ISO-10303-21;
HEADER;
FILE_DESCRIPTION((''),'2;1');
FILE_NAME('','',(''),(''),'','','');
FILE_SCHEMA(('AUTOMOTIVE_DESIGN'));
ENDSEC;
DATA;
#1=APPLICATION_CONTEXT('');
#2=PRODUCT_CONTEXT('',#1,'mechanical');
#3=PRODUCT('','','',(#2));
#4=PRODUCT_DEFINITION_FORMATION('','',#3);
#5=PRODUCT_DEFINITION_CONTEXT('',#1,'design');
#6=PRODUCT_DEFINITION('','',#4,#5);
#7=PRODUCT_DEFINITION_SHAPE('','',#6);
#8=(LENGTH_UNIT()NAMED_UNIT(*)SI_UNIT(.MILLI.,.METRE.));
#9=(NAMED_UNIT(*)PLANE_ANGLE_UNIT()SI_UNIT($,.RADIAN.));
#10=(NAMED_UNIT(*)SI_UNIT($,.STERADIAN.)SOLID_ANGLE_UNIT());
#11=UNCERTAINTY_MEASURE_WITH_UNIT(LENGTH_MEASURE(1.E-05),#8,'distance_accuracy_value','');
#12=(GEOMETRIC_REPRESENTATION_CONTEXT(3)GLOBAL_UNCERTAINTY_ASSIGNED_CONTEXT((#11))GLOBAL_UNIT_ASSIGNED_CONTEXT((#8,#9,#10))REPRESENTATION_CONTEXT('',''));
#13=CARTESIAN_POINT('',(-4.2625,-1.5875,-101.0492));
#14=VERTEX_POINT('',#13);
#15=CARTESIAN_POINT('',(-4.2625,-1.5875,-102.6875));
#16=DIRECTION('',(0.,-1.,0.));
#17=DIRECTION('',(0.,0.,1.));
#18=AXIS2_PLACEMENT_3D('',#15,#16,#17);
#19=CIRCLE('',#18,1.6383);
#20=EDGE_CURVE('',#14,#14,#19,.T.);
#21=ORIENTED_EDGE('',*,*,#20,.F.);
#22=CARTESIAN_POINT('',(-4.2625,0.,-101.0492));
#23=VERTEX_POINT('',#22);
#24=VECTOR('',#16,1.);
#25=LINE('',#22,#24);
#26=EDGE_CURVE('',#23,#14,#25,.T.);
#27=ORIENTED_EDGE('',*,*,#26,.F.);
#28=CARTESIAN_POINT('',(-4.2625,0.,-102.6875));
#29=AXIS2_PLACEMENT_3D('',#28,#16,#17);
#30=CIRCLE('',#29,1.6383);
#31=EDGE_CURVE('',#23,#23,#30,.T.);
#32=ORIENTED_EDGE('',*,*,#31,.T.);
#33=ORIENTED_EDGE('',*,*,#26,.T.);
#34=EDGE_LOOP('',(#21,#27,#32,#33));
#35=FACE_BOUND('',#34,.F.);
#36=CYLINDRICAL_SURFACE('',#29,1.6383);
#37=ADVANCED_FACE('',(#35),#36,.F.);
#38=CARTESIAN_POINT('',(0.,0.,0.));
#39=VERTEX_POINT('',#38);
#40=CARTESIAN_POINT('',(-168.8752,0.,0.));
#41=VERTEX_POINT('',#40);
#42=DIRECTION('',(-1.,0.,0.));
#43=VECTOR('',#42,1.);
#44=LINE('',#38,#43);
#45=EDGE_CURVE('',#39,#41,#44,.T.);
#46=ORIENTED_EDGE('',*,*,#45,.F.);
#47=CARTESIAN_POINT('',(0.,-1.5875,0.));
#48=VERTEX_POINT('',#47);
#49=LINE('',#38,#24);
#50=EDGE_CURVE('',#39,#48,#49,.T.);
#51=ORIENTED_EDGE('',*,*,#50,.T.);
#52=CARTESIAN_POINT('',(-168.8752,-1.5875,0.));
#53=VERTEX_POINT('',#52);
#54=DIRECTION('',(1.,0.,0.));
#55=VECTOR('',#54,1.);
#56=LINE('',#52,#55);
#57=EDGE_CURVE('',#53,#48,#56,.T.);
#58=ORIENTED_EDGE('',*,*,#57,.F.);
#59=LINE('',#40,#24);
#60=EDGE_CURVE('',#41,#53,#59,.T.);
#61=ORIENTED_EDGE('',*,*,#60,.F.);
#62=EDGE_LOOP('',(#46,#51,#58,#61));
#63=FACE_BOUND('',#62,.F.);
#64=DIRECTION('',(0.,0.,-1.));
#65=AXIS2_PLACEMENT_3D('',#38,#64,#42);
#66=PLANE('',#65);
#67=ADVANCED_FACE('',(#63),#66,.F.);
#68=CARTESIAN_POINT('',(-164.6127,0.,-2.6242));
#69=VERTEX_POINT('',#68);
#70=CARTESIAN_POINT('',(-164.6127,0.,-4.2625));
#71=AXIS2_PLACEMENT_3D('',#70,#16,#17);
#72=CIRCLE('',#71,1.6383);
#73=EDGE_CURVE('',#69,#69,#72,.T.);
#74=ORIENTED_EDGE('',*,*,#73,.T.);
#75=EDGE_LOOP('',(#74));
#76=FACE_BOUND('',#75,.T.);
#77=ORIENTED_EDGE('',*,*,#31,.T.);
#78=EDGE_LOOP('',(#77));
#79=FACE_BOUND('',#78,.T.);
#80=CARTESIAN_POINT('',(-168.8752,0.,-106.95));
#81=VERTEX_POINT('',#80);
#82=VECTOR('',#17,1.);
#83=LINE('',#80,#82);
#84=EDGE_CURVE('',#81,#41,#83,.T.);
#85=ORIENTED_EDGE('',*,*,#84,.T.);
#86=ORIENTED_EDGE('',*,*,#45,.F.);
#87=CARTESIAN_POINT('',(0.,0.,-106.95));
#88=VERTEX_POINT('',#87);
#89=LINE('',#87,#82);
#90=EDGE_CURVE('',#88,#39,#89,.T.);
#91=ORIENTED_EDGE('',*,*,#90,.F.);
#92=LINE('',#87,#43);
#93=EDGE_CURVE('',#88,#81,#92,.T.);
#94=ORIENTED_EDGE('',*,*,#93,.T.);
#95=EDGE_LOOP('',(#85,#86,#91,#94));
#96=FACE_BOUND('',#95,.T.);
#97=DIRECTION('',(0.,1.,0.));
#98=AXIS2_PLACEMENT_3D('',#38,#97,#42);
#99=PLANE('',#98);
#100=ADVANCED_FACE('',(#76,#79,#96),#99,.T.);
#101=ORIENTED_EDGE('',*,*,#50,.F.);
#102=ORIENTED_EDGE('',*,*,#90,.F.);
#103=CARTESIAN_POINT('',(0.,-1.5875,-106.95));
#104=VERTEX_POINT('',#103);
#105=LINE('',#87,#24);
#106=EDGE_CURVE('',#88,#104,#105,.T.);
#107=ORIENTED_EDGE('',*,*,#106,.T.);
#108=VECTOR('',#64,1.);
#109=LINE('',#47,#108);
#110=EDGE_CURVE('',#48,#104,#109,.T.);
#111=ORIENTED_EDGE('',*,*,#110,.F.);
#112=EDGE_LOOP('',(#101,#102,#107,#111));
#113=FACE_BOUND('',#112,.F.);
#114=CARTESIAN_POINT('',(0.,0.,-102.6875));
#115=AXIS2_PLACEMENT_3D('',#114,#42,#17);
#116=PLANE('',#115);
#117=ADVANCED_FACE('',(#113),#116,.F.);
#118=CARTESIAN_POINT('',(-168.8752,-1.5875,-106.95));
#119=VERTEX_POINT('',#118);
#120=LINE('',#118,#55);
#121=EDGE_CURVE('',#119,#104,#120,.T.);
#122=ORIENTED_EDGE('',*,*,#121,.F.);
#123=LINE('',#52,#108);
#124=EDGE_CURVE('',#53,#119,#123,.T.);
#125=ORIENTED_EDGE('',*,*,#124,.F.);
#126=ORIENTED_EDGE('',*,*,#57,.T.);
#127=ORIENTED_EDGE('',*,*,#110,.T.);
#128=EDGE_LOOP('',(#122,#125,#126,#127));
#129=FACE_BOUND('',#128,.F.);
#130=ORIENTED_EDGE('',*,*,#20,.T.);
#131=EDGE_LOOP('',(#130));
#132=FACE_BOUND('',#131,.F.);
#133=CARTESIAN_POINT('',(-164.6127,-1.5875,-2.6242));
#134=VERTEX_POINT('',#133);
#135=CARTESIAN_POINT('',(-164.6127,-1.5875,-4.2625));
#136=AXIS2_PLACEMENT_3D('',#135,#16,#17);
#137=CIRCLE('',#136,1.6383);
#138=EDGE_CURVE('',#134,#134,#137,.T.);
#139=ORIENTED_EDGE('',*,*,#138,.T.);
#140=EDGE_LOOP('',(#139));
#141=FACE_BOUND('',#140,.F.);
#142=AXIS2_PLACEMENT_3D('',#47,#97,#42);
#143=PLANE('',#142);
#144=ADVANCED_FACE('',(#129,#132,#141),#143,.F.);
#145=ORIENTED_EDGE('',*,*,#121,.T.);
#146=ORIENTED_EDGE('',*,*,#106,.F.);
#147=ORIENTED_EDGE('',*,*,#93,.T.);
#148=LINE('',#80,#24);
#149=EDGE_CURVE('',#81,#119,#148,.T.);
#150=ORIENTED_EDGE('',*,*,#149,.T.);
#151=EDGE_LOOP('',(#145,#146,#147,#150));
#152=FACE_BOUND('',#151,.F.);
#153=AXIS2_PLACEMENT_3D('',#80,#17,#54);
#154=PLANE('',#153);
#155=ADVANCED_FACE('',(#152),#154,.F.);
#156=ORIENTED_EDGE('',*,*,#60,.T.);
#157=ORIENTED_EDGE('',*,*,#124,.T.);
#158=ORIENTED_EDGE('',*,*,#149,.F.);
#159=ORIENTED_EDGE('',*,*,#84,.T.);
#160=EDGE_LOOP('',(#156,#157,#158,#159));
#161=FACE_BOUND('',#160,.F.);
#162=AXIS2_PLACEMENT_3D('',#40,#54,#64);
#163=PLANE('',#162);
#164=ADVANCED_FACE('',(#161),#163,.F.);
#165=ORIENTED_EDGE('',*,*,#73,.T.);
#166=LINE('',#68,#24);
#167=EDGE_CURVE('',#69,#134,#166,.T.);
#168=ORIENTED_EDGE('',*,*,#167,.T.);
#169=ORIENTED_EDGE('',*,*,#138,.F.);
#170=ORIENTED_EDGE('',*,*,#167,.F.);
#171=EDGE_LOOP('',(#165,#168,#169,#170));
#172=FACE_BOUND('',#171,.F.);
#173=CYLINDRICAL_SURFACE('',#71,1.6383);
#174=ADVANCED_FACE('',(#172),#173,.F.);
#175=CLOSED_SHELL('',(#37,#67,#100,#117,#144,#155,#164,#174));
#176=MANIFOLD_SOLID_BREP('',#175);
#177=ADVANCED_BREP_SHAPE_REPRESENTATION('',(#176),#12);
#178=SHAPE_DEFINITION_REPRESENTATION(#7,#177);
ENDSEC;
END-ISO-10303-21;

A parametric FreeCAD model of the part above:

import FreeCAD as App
import Part
import Sketcher
Q = App.Units.Quantity

doc = App.newDocument("Part")
body = doc.addObject("PartDesign::Body", "Body")

# Sketch on XZ plane
sketch1 = body.newObject("Sketcher::SketchObject", "Sketch")
sketch1.AttachmentSupport = (doc.getObject("XZ_Plane"), [""])
sketch1.MapMode = "FlatFace"
sketch1.addGeometry([
    Part.LineSegment(App.Vector(0, 0, 0), App.Vector(0, -106.95, 0)),
    Part.LineSegment(App.Vector(0, -106.95, 0), App.Vector(-168.8752, -106.95, 0)),
    Part.LineSegment(App.Vector(-168.8752, -106.95, 0), App.Vector(-168.8752, 0, 0)),
    Part.LineSegment(App.Vector(-168.8752, 0, 0), App.Vector(0, 0, 0)),
], False)
sketch1.addConstraint([
    Sketcher.Constraint("Coincident", 0, 2, 1, 1),
    Sketcher.Constraint("Coincident", 1, 2, 2, 1),
    Sketcher.Constraint("Coincident", 2, 2, 3, 1),
    Sketcher.Constraint("Coincident", 3, 2, 0, 1),
    Sketcher.Constraint("Vertical", 0),
    Sketcher.Constraint("Horizontal", 1),
    Sketcher.Constraint("Vertical", 2),
    Sketcher.Constraint("Horizontal", 3),
    Sketcher.Constraint("Coincident", 3, 2, -1, 1),
    Sketcher.Constraint("DistanceX", 1, 2, 1, 1, Q("168.8752 mm")),
    Sketcher.Constraint("DistanceY", 0, 2, 0, 1, Q("106.95 mm")),
])
pad1 = body.newObject("PartDesign::Pad", "Pad")
pad1.Profile = sketch1
pad1.Length = Q("0.0625 in")

# Sketch on XZ plane
sketch2 = body.newObject("Sketcher::SketchObject", "Sketch001")
sketch2.AttachmentSupport = (doc.getObject("XZ_Plane"), [""])
sketch2.MapMode = "FlatFace"
sketch2.addGeometry([
    Part.Circle(App.Vector(-164.6127, -4.2625, 0), App.Vector(0, 0, 1), 1.6383),
    Part.Circle(App.Vector(-4.2625, -102.6875, 0), App.Vector(0, 0, 1), 1.6383),
], False)
sketch2.addConstraint([
    Sketcher.Constraint("Equal", 0, 1),
    Sketcher.Constraint("Diameter", 0, Q("0.129 in")),
    Sketcher.Constraint("DistanceX", 0, 3, 1, 3, Q("6.313 in")),
    Sketcher.Constraint("DistanceY", 1, 3, 0, 3, Q("3.875 in")),
    Sketcher.Constraint("DistanceX", 0, 3, -1, 1, Q("164.6127 mm")),
    Sketcher.Constraint("DistanceY", 0, 3, -1, 1, Q("4.2625 mm")),
])
doc.recompute()
hole = body.newObject("PartDesign::Hole", "Hole")
hole.Profile = sketch2
hole.ThreadType = "None"
hole.Diameter = Q("0.129 in")
hole.DepthType = "ThroughAll"
hole.Reversed = True

doc.recompute()
